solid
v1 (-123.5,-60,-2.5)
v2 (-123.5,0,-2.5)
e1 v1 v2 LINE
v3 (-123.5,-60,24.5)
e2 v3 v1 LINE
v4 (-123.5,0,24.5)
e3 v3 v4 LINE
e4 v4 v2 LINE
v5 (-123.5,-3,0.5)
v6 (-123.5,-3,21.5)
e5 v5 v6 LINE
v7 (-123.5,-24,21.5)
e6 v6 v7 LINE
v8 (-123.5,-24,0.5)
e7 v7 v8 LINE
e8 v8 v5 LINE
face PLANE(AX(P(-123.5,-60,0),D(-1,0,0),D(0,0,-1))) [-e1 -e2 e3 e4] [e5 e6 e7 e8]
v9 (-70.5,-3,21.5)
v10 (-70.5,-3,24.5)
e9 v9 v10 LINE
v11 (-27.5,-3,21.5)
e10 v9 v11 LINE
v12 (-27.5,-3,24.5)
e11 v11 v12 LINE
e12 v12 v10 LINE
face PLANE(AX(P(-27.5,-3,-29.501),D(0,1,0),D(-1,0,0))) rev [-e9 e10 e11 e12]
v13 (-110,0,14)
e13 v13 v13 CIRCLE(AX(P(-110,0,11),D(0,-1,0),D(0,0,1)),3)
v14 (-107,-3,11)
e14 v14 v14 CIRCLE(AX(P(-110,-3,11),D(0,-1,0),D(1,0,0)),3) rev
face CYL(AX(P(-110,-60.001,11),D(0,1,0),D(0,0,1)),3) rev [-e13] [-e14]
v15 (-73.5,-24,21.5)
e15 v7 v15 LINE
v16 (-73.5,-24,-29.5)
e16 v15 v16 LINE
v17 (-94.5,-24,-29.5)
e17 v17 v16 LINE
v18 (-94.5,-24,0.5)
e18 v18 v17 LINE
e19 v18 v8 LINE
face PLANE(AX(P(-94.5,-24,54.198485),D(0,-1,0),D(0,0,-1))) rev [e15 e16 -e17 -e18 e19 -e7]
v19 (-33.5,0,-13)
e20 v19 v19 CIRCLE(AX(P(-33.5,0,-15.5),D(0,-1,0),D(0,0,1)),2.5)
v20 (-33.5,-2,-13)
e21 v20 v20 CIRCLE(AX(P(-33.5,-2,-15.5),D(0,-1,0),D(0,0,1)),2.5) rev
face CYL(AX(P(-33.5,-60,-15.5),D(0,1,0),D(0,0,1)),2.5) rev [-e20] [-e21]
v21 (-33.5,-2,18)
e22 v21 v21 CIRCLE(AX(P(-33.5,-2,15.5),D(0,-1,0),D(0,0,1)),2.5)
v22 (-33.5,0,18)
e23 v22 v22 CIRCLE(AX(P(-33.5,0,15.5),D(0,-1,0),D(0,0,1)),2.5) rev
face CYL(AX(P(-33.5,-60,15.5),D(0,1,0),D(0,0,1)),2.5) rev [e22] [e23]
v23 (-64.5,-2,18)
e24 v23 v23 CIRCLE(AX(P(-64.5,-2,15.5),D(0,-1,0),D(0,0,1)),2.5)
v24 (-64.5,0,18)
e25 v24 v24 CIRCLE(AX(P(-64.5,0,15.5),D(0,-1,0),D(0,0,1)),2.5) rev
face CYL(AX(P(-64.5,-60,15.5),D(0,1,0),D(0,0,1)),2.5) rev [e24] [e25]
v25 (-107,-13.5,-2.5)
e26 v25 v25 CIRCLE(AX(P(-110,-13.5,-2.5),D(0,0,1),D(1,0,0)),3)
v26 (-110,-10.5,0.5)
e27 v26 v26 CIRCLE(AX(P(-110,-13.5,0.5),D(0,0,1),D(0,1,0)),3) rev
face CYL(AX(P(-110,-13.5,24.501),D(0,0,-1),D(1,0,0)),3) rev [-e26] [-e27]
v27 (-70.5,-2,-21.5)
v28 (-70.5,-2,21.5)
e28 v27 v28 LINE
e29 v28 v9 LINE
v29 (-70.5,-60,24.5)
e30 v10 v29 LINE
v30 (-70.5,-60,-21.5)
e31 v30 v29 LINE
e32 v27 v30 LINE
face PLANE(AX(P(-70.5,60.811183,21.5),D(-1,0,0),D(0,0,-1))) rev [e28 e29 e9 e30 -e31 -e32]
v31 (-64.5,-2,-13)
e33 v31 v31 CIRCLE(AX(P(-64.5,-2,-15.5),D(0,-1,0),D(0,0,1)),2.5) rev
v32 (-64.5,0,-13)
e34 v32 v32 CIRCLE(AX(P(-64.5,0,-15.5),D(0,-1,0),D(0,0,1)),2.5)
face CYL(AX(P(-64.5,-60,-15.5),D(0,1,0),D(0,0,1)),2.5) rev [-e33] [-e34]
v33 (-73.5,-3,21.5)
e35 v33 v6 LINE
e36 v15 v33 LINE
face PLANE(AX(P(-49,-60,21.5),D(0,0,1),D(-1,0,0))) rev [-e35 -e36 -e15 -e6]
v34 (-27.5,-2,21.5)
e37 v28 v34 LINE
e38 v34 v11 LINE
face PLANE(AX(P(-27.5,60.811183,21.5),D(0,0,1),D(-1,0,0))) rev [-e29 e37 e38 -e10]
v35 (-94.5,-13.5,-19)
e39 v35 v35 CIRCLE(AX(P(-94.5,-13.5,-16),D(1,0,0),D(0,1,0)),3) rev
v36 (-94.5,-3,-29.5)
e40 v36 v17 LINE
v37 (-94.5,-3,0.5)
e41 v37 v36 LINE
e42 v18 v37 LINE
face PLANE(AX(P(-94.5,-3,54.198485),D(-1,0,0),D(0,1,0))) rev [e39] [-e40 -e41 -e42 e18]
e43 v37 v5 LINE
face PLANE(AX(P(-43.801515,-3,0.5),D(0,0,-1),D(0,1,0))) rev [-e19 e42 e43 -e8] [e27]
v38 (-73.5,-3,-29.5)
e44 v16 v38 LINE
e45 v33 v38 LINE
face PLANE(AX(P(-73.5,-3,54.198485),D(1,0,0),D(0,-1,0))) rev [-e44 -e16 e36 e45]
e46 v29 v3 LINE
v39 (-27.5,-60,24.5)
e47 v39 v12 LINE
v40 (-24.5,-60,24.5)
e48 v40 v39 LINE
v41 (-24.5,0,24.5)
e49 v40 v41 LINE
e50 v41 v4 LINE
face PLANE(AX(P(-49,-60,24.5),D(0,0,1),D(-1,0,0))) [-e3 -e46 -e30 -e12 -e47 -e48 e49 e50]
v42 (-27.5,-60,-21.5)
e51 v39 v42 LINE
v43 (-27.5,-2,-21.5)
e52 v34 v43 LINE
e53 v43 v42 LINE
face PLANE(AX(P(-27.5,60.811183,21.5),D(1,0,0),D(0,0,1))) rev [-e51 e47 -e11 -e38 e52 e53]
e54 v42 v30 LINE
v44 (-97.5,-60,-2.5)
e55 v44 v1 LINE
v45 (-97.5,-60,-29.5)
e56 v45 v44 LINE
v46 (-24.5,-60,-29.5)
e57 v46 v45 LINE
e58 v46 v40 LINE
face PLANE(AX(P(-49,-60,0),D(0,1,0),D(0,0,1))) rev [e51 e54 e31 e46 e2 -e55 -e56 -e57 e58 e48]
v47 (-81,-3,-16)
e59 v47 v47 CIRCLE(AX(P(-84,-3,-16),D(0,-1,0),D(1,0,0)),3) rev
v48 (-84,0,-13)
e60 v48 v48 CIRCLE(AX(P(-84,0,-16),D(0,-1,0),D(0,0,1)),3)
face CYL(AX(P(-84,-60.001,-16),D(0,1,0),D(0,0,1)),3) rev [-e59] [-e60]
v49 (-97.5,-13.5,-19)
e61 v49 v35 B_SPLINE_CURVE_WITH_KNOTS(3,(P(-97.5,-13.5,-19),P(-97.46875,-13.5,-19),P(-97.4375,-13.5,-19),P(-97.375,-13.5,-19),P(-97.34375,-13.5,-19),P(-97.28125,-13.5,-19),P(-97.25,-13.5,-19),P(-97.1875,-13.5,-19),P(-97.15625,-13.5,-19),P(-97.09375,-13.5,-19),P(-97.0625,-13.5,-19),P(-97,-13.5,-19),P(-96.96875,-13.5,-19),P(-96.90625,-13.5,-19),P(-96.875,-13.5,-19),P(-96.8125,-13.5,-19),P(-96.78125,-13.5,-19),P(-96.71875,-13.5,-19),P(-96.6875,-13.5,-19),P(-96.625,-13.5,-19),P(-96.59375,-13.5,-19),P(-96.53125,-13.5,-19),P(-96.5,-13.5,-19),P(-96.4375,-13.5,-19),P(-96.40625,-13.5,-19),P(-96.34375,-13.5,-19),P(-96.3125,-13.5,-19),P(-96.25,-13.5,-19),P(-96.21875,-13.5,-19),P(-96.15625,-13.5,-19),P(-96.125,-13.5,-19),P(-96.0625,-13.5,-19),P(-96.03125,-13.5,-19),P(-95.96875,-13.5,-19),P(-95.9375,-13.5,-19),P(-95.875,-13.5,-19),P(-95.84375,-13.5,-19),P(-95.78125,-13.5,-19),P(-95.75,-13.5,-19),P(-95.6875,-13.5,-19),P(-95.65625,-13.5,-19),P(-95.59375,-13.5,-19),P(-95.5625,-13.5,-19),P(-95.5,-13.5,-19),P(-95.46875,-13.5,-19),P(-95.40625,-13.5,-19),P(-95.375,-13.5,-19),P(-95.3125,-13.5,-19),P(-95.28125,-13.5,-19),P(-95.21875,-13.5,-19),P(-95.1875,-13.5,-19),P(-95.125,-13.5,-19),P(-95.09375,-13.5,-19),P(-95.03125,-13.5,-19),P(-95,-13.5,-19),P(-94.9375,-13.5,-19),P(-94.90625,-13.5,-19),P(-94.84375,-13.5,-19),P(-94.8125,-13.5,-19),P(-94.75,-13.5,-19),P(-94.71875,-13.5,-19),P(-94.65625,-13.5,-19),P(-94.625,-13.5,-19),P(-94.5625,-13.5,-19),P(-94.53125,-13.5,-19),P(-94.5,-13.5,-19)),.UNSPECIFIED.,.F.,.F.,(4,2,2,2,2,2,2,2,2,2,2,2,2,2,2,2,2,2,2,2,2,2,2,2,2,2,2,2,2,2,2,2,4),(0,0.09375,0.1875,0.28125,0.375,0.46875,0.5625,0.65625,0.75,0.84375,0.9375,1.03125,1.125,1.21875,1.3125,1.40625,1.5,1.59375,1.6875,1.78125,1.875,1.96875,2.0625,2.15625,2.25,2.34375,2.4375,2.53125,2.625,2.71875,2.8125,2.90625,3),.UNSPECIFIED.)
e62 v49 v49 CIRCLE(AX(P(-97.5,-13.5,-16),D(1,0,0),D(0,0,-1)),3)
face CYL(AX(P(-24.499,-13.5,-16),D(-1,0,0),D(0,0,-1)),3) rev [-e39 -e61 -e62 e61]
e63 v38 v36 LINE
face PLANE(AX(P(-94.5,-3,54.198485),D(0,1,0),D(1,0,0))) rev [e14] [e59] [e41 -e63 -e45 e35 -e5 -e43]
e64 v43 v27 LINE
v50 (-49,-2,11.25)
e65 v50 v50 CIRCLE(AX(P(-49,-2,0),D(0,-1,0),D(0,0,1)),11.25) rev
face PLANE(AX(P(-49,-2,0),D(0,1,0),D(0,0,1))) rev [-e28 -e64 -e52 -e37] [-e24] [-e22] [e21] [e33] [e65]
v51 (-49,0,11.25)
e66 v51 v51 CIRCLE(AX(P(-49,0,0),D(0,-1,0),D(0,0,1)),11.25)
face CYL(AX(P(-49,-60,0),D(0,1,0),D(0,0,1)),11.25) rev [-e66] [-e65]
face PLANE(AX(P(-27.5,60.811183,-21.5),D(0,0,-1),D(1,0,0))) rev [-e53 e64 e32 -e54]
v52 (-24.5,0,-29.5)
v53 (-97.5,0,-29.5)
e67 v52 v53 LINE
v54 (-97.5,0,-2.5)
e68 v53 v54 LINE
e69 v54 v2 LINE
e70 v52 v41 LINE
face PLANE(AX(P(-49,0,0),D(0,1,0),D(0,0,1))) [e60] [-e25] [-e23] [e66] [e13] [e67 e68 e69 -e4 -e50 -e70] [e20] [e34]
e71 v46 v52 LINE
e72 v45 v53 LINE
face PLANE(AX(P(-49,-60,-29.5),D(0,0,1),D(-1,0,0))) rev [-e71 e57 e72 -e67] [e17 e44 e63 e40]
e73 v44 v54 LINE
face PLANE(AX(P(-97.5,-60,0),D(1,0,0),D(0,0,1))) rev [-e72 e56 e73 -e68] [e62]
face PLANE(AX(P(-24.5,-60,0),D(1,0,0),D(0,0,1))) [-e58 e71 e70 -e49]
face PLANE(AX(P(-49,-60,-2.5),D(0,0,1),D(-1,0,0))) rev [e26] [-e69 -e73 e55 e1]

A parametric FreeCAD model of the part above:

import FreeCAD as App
import Part
import Sketcher

V = App.Vector


def add_polygon(sketch, points):
    """Adds a closed chain of lines whose ends are joined by coincident constraints."""
    first, n = sketch.GeometryCount, len(points)
    for a, b in zip(points, points[1:] + points[:1]):
        sketch.addGeometry(Part.LineSegment(App.Vector(*a, 0), App.Vector(*b, 0)), False)
    for i in range(n):
        sketch.addConstraint(Sketcher.Constraint("Coincident", first + i, 2, first + (i + 1) % n, 1))

doc = App.newDocument("Part")
body = doc.addObject("PartDesign::Body", "Body")

sketch1 = doc.addObject("Sketcher::SketchObject", "Sketch")
body.addObject(sketch1)
sketch1.AttachmentSupport = (doc.XZ_Plane, [""])
sketch1.MapMode = "FlatFace"
add_polygon(sketch1, [(48.5, -29.5), (-24.5, -29.5), (-24.5, 24.5), (74.5, 24.5), (74.5, -2.5), (48.5, -2.5)])
sketch1.addGeometry(Part.Circle(V(15.5, 15.5, 0), V(0, 0, 1), 2.5), False)
sketch1.addGeometry(Part.Circle(V(-15.5, 15.5, 0), V(0, 0, 1), 2.5), False)
sketch1.addGeometry(Part.Circle(V(0, 0, 0), V(0, 0, 1), 11.2), False)
sketch1.addGeometry(Part.Circle(V(15.5, -15.5, 0), V(0, 0, 1), 2.5), False)
sketch1.addGeometry(Part.Circle(V(-15.5, -15.5, 0), V(0, 0, 1), 2.5), False)
sketch1.addConstraint(Sketcher.Constraint("Horizontal", 0))
sketch1.addConstraint(Sketcher.Constraint("Vertical", 1))
sketch1.addConstraint(Sketcher.Constraint("Horizontal", 2))
sketch1.addConstraint(Sketcher.Constraint("Vertical", 3))
sketch1.addConstraint(Sketcher.Constraint("Horizontal", 4))
sketch1.addConstraint(Sketcher.Constraint("Vertical", 5))
sketch1.addConstraint(Sketcher.Constraint("Coincident", 8, 3, -1, 1))
sketch1.addConstraint(Sketcher.Constraint("Equal", 6, 7))
sketch1.addConstraint(Sketcher.Constraint("Equal", 7, 9))
sketch1.addConstraint(Sketcher.Constraint("Equal", 9, 10))
sketch1.addConstraint(Sketcher.Constraint("Symmetric", 7, 3, 9, 3, -1, 1))
sketch1.addConstraint(Sketcher.Constraint("Symmetric", 6, 3, 10, 3, -1, 1))
sketch1.addConstraint(Sketcher.Constraint("Symmetric", 6, 3, 7, 3, -2))
sketch1.addConstraint(Sketcher.Constraint("Equal", 3, 5))
sketch1.addConstraint(Sketcher.Constraint("Diameter", 6, 5.0))
sketch1.addConstraint(Sketcher.Constraint("Diameter", 8, 22.5))
sketch1.addConstraint(Sketcher.Constraint("DistanceX", 0, 2, 0, 1, 73.0))
sketch1.addConstraint(Sketcher.Constraint("DistanceX", 2, 1, 2, 2, 99.0))
sketch1.addConstraint(Sketcher.Constraint("DistanceY", 1, 1, 1, 2, 54.0))
sketch1.addConstraint(Sketcher.Constraint("DistanceX", 7, 3, 6, 3, 31.0))
sketch1.addConstraint(Sketcher.Constraint("DistanceY", 9, 3, 6, 3, 31.0))
sketch1.addConstraint(Sketcher.Constraint("DistanceX", 0, 2, 10, 3, 9.0))
sketch1.addConstraint(Sketcher.Constraint("DistanceY", 0, 2, 10, 3, 14.0))
pad1 = doc.addObject("PartDesign::Pad", "Pad")
body.addObject(pad1)
pad1.Profile = sketch1
pad1.Length = 60

sketch2 = doc.addObject("Sketcher::SketchObject", "Sketch001")
body.addObject(sketch2)
sketch2.AttachmentSupport = (doc.XZ_Plane, [""])
sketch2.MapMode = "FlatFace"
sketch2.AttachmentOffset = App.Placement(V(0, 0, 60), App.Rotation())
add_polygon(sketch2, [(-22, 22), (-22, -22), (22, -22), (22, 22)])
sketch2.addConstraint(Sketcher.Constraint("Vertical", 0))
sketch2.addConstraint(Sketcher.Constraint("Horizontal", 1))
sketch2.addConstraint(Sketcher.Constraint("Vertical", 2))
sketch2.addConstraint(Sketcher.Constraint("Horizontal", 3))
sketch2.addConstraint(Sketcher.Constraint("Symmetric", 0, 2, 2, 2, -1, 1))
sketch2.addConstraint(Sketcher.Constraint("Equal", 3, 0))
sketch2.addConstraint(Sketcher.Constraint("DistanceX", 1, 1, 1, 2, 43.0))
pocket1 = doc.addObject("PartDesign::Pocket", "Pocket")
body.addObject(pocket1)
pocket1.Profile = sketch2
pocket1.Length = 58

sketch3 = doc.addObject("Sketcher::SketchObject", "Sketch002")
body.addObject(sketch3)
sketch3.AttachmentSupport = (doc.XY_Plane, [""])
sketch3.MapMode = "FlatFace"
sketch3.AttachmentOffset = App.Placement(V(0, 0, -29.5), App.Rotation())
add_polygon(sketch3, [(46, -3), (46, -24), (24, -24), (24, -3)])
sketch3.addConstraint(Sketcher.Constraint("Vertical", 0))
sketch3.addConstraint(Sketcher.Constraint("Horizontal", 1))
sketch3.addConstraint(Sketcher.Constraint("Vertical", 2))
sketch3.addConstraint(Sketcher.Constraint("Horizontal", 3))
sketch3.addConstraint(Sketcher.Constraint("Equal", 3, 0))
sketch3.addConstraint(Sketcher.Constraint("DistanceX", 1, 2, 1, 1, 21.0))
sketch3.addConstraint(Sketcher.Constraint("DistanceY", 0, 2, -1, 1, 24.0))
sketch3.addConstraint(Sketcher.Constraint("DistanceX", -1, 1, 0, 2, 45.5))
pocket2 = doc.addObject("PartDesign::Pocket", "Pocket001")
body.addObject(pocket2)
pocket2.Profile = sketch3
pocket2.Length = 51
pocket2.Reversed = True

sketch4 = doc.addObject("Sketcher::SketchObject", "Sketch003")
body.addObject(sketch4)
sketch4.AttachmentSupport = (doc.YZ_Plane, [""])
sketch4.MapMode = "FlatFace"
sketch4.AttachmentOffset = App.Placement(V(0, 0, 74.5), App.Rotation())
add_polygon(sketch4, [(-3, 22), (-24, 22), (-24, 0), (-3, 0)])
sketch4.addConstraint(Sketcher.Constraint("Horizontal", 0))
sketch4.addConstraint(Sketcher.Constraint("Vertical", 1))
sketch4.addConstraint(Sketcher.Constraint("Horizontal", 2))
sketch4.addConstraint(Sketcher.Constraint("Vertical", 3))
sketch4.addConstraint(Sketcher.Constraint("Equal", 2, 1))
sketch4.addConstraint(Sketcher.Constraint("DistanceX", 0, 2, 0, 1, 21.0))
sketch4.addConstraint(Sketcher.Constraint("DistanceX", 0, 2, -1, 1, 24.0))
sketch4.addConstraint(Sketcher.Constraint("DistanceY", -1, 1, 0, 2, 21.5))
pocket3 = doc.addObject("PartDesign::Pocket", "Pocket002")
body.addObject(pocket3)
pocket3.Profile = sketch4
pocket3.Length = 50

sketch5 = doc.addObject("Sketcher::SketchObject", "Sketch004")
body.addObject(sketch5)
sketch5.AttachmentSupport = (doc.YZ_Plane, [""])
sketch5.MapMode = "FlatFace"
sketch5.AttachmentOffset = App.Placement(V(0, 0, 48.5), App.Rotation())
sketch5.addGeometry(Part.Circle(V(-13.5, -16, 0), V(0, 0, 1), 3), False)
sketch5.addConstraint(Sketcher.Constraint("Diameter", 0, 6.0))
sketch5.addConstraint(Sketcher.Constraint("DistanceY", 0, 3, -1, 1, 16.0))
sketch5.addConstraint(Sketcher.Constraint("DistanceX", 0, 3, -1, 1, 13.5))
pocket4 = doc.addObject("PartDesign::Pocket", "Pocket003")
body.addObject(pocket4)
pocket4.Profile = sketch5
pocket4.Type = "UpToFirst"

sketch6 = doc.addObject("Sketcher::SketchObject", "Sketch005")
body.addObject(sketch6)
sketch6.AttachmentSupport = (doc.XZ_Plane, [""])
sketch6.MapMode = "FlatFace"
sketch6.addGeometry(Part.Circle(V(35, -16, 0), V(0, 0, 1), 3), False)
sketch6.addConstraint(Sketcher.Constraint("Diameter", 0, 6.0))
sketch6.addConstraint(Sketcher.Constraint("DistanceX", -1, 1, 0, 3, 35.0))
sketch6.addConstraint(Sketcher.Constraint("DistanceY", 0, 3, -1, 1, 16.0))
pocket5 = doc.addObject("PartDesign::Pocket", "Pocket004")
body.addObject(pocket5)
pocket5.Profile = sketch6
pocket5.Type = "UpToFirst"
pocket5.Reversed = True

sketch7 = doc.addObject("Sketcher::SketchObject", "Sketch006")
body.addObject(sketch7)
sketch7.AttachmentSupport = (doc.XY_Plane, [""])
sketch7.MapMode = "FlatFace"
sketch7.AttachmentOffset = App.Placement(V(0, 0, -2.5), App.Rotation())
sketch7.addGeometry(Part.Circle(V(61, -13.5, 0), V(0, 0, 1), 3), False)
sketch7.addConstraint(Sketcher.Constraint("Diameter", 0, 6.0))
sketch7.addConstraint(Sketcher.Constraint("DistanceX", -1, 1, 0, 3, 61.0))
sketch7.addConstraint(Sketcher.Constraint("DistanceY", 0, 3, -1, 1, 13.5))
pocket6 = doc.addObject("PartDesign::Pocket", "Pocket005")
body.addObject(pocket6)
pocket6.Profile = sketch7
pocket6.Type = "UpToFirst"
pocket6.Reversed = True

sketch8 = doc.addObject("Sketcher::SketchObject", "Sketch007")
body.addObject(sketch8)
sketch8.AttachmentSupport = (doc.XZ_Plane, [""])
sketch8.MapMode = "FlatFace"
sketch8.addGeometry(Part.Circle(V(61, 11, 0), V(0, 0, 1), 3), False)
sketch8.addConstraint(Sketcher.Constraint("Diameter", 0, 6.0))
sketch8.addConstraint(Sketcher.Constraint("DistanceX", -1, 1, 0, 3, 61.0))
sketch8.addConstraint(Sketcher.Constraint("DistanceY", -1, 1, 0, 3, 11.0))
pocket7 = doc.addObject("PartDesign::Pocket", "Pocket006")
body.addObject(pocket7)
pocket7.Profile = sketch8
pocket7.Type = "UpToFirst"
pocket7.Reversed = True
body2 = doc.addObject("PartDesign::Body", "Body001")
doc.recompute()

mirroring = doc.addObject("Part::Mirroring", "Mirroring")
mirroring.Source = body
mirroring.Base = V(-24.5, -60, 0)
mirroring.Normal = V(-1, 0, 0)
body2.BaseFeature = mirroring
doc.recompute()

sketch9 = doc.addObject("Sketcher::SketchObject", "Sketch008")
body2.addObject(sketch9)
sketch9.AttachmentSupport = (doc.getObject("XY_Plane001"), [""])
sketch9.MapMode = "FlatFace"
sketch9.AttachmentOffset = App.Placement(V(0, 0, 24.5), App.Rotation())
add_polygon(sketch9, [(-70, -3), (-70, -60), (-28, -60), (-28, -3)])
sketch9.addConstraint(Sketcher.Constraint("Vertical", 0))
sketch9.addConstraint(Sketcher.Constraint("Horizontal", 1))
sketch9.addConstraint(Sketcher.Constraint("Vertical", 2))
sketch9.addConstraint(Sketcher.Constraint("Horizontal", 3))
sketch9.addConstraint(Sketcher.Constraint("DistanceX", 1, 1, 1, 2, 43.0))
sketch9.addConstraint(Sketcher.Constraint("DistanceY", 0, 2, 0, 1, 57.0))
sketch9.addConstraint(Sketcher.Constraint("DistanceY", 0, 2, -1, 1, 60.0))
sketch9.addConstraint(Sketcher.Constraint("DistanceX", 0, 2, -1, 1, 70.5))
pocket8 = doc.addObject("PartDesign::Pocket", "Pocket007")
body2.addObject(pocket8)
pocket8.Profile = sketch9
pocket8.Type = "UpToFirst"
body.Visibility = False
mirroring.Visibility = False

doc.recompute()
